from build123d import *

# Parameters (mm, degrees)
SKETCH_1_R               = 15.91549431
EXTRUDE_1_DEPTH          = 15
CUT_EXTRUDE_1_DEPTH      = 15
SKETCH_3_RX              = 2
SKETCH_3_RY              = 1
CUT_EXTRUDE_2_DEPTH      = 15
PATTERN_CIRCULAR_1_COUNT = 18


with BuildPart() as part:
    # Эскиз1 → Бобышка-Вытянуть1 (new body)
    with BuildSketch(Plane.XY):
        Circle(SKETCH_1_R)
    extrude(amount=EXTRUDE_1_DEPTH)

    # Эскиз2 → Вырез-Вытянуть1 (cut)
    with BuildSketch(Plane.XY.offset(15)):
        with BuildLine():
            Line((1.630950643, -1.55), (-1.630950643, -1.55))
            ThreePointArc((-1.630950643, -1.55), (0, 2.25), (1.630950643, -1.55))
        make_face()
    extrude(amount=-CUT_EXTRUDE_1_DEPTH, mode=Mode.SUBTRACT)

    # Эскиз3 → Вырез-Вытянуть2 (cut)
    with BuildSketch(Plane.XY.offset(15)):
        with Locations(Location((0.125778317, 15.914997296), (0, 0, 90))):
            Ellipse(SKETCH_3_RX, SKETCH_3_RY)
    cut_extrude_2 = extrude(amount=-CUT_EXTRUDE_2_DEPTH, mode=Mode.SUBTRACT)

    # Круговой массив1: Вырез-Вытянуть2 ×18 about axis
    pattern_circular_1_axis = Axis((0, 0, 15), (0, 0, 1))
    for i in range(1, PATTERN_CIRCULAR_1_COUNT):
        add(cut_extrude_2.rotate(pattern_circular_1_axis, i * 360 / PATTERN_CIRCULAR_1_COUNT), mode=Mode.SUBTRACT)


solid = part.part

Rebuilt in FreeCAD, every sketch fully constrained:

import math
import FreeCAD as App
import Part
import Sketcher

V = App.Vector

doc = App.newDocument("Part")
body = doc.addObject("PartDesign::Body", "Body")

# Sketch on XY plane
sketch1 = body.newObject("Sketcher::SketchObject", "Sketch")
sketch1.AttachmentSupport = (doc.getObject("XY_Plane"), [""])
sketch1.MapMode = "FlatFace"
sketch1.addGeometry(Part.Circle(V(0, 0, 0), V(0, 0, 1), 15.915494), False)
sketch1.addConstraint([
    Sketcher.Constraint("Coincident", 0, 3, -1, 1),
    Sketcher.Constraint("Diameter", 0, 31.830989),
])
pad1 = body.newObject("PartDesign::Pad", "Pad")
pad1.Profile = sketch1
pad1.Length = 15

# Sketch on XY plane
sketch2 = body.newObject("Sketcher::SketchObject", "Sketch001")
sketch2.AttachmentSupport = (doc.getObject("XY_Plane"), [""])
sketch2.MapMode = "FlatFace"
sketch2.AttachmentOffset = App.Placement(V(0, 0, 15), App.Rotation())
sketch2.addGeometry([
    Part.LineSegment(V(-1.630951, -1.55, 0), V(1.630951, -1.55, 0)),
    Part.ArcOfCircle(Part.Circle(V(0, 0, 0), V(0, 0, 1), 2.25), math.radians(-43.542219), math.radians(223.542219)),
], False)
sketch2.addConstraint([
    Sketcher.Constraint("Coincident", 0, 1, 1, 2),
    Sketcher.Constraint("Coincident", 1, 1, 0, 2),
    Sketcher.Constraint("Horizontal", 0),
    Sketcher.Constraint("Coincident", 1, 3, -1, 1),
    Sketcher.Constraint("Radius", 1, 2.25),
    Sketcher.Constraint("DistanceY", 0, 1, -1, 1, 1.55),
])
pocket1 = body.newObject("PartDesign::Pocket", "Pocket")
pocket1.Profile = sketch2
pocket1.Length = 15

# Sketch on XY plane
sketch3 = body.newObject("Sketcher::SketchObject", "Sketch002")
sketch3.AttachmentSupport = (doc.getObject("XY_Plane"), [""])
sketch3.MapMode = "FlatFace"
sketch3.AttachmentOffset = App.Placement(V(0, 0, 15), App.Rotation())
sketch3.addGeometry(Part.Ellipse(V(0.125778, 17.914997, 0), V(-0.874222, 15.914997, 0), V(0.125778, 15.914997, 0)), False)
sketch3.addConstraint(Sketcher.Constraint("Block", 0))
pocket2 = body.newObject("PartDesign::Pocket", "Pocket001")
pocket2.Profile = sketch3
pocket2.Length = 15
doc.recompute()

polarpattern = body.newObject("PartDesign::PolarPattern", "PolarPattern")
polarpattern.Originals = [pocket2]
polarpattern.Axis = (doc.getObject("Z_Axis"), [""])
polarpattern.Angle = 360
polarpattern.Occurrences = 18
body.Tip = polarpattern

doc.recompute()
